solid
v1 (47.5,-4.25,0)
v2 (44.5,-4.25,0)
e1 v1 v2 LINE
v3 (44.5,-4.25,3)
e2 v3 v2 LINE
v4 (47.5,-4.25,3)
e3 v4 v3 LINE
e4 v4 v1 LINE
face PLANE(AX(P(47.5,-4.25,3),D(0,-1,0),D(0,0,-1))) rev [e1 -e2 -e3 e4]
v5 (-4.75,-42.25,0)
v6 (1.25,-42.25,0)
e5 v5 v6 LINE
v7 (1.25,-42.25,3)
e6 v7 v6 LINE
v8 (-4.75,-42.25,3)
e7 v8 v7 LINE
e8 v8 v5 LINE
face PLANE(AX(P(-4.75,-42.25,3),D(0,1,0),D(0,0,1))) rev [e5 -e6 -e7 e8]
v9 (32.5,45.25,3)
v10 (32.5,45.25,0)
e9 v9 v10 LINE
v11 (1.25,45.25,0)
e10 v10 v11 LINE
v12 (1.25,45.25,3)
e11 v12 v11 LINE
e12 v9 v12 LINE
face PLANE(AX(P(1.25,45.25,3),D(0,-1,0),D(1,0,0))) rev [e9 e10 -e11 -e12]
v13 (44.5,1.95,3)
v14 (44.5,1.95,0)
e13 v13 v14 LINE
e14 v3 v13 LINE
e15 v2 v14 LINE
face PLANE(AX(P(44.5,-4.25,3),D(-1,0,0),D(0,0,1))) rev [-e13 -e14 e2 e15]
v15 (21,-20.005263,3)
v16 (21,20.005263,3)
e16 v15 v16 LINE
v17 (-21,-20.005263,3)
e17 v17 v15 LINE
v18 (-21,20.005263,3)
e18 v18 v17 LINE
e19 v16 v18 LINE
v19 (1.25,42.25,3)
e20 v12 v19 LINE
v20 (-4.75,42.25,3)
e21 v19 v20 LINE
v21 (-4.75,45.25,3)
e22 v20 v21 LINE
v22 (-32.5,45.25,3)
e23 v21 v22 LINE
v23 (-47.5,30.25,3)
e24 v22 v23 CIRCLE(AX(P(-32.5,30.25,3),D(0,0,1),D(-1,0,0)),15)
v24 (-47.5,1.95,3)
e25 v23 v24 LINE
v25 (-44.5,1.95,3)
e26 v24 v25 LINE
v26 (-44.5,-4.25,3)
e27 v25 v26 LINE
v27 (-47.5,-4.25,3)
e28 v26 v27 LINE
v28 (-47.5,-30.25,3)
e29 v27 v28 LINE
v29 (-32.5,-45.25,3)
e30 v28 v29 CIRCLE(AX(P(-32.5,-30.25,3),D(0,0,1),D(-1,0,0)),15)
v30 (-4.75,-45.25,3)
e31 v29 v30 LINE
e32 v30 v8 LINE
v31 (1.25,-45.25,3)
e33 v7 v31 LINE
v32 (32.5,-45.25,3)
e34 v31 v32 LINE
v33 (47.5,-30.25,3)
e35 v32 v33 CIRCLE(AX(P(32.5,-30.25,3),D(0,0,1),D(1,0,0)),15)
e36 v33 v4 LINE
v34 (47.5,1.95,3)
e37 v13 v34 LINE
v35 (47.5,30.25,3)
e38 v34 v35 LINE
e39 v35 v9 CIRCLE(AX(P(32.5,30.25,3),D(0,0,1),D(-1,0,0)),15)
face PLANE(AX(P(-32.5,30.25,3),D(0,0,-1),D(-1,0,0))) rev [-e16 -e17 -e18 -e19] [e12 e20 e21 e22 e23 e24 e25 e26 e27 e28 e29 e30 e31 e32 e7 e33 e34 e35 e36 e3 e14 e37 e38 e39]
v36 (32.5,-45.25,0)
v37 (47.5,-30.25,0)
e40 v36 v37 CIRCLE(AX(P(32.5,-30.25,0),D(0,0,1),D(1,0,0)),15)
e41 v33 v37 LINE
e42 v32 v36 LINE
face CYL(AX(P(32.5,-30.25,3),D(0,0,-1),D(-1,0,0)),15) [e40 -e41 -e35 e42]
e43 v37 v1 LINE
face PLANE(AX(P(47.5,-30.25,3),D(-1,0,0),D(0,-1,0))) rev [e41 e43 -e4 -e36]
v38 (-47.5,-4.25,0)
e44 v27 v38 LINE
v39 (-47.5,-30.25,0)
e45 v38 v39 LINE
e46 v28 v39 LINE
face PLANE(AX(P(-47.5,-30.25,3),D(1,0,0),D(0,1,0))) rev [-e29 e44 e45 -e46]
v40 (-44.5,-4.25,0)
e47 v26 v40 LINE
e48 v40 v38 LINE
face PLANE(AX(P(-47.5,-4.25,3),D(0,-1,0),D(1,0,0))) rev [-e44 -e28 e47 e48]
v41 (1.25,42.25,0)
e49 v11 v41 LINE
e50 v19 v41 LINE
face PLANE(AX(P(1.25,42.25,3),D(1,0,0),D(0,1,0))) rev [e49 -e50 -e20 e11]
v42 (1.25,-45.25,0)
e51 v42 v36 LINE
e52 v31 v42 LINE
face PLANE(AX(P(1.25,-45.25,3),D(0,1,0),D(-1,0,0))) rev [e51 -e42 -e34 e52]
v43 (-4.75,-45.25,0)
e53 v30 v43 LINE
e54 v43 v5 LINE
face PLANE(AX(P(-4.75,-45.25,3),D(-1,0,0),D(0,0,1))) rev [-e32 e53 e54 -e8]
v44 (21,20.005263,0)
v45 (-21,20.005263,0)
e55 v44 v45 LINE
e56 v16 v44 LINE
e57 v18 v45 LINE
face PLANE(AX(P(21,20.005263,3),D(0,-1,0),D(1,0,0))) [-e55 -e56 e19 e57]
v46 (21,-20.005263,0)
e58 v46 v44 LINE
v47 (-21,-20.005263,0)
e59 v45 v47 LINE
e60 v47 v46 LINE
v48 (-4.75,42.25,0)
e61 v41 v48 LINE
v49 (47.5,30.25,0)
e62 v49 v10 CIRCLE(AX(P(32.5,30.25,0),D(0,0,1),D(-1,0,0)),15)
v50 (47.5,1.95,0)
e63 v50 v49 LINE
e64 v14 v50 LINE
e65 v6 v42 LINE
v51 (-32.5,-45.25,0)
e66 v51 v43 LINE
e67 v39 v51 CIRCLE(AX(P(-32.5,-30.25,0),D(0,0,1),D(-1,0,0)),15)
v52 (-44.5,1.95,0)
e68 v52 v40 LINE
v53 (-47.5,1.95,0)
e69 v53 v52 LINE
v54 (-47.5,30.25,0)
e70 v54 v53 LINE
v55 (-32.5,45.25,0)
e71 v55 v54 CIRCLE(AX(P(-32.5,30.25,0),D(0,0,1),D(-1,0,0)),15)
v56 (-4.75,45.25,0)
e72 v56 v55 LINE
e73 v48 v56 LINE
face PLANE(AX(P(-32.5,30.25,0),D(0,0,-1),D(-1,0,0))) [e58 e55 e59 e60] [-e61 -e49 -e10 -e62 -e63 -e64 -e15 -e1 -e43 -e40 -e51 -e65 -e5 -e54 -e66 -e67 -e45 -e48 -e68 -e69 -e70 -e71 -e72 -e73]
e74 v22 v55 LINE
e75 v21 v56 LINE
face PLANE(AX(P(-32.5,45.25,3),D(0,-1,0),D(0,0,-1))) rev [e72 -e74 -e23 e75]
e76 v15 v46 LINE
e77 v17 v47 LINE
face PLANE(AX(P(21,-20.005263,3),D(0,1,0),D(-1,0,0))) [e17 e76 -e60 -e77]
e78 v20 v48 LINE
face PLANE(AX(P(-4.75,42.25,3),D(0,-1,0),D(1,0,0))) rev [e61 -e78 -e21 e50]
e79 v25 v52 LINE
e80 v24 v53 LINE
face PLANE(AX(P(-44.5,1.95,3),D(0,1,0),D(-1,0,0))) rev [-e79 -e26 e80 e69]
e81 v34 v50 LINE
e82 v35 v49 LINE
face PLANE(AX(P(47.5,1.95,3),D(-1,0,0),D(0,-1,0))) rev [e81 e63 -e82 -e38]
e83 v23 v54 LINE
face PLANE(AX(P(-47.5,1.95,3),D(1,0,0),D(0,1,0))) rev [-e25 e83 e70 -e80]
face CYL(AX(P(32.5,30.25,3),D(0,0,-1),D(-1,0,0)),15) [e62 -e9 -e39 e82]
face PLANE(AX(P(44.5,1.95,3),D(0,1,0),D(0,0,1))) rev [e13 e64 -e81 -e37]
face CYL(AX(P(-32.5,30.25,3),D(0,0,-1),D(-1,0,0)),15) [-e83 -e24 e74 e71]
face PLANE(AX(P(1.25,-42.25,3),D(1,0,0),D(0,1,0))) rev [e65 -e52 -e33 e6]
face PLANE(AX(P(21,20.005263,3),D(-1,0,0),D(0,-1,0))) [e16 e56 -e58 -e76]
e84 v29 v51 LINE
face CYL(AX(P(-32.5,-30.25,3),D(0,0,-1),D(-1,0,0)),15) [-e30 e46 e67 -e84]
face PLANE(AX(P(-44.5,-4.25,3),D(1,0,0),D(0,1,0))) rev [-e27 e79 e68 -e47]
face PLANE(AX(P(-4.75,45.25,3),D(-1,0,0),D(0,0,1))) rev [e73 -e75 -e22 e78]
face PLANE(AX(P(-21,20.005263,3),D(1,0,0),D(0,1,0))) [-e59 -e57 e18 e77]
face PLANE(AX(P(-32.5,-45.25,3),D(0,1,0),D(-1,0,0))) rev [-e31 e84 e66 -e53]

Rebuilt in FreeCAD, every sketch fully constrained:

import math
import FreeCAD as App
import Part
import Sketcher
Q = App.Units.Quantity


def add_polygon(sketch, points):
    """Adds a closed chain of lines whose ends are joined by coincident constraints."""
    first, n = sketch.GeometryCount, len(points)
    for a, b in zip(points, points[1:] + points[:1]):
        sketch.addGeometry(Part.LineSegment(App.Vector(*a, 0), App.Vector(*b, 0)), False)
    for i in range(n):
        sketch.addConstraint(Sketcher.Constraint("Coincident", first + i, 2, first + (i + 1) % n, 1))

doc = App.newDocument("Part")
body = doc.addObject("PartDesign::Body", "Body")

# Sketch on XY plane
sketch1 = body.newObject("Sketcher::SketchObject", "Sketch")
sketch1.AttachmentSupport = (doc.getObject("XY_Plane"), [""])
sketch1.MapMode = "FlatFace"
sketch1.addGeometry(Part.LineSegment(App.Vector(-44.5, -4.25, 0), App.Vector(-47.5, -4.25, 0)), False)  # 0
sketch1.addGeometry(Part.LineSegment(App.Vector(-47.5, -4.25, 0), App.Vector(-47.5, -30.25, 0)), False)  # 1
sketch1.addGeometry(Part.ArcOfCircle(Part.Circle(App.Vector(-32.5, -30.25, 0), App.Vector(0, 0, 1), 15), math.radians(180), math.radians(270)), False)  # 2
sketch1.addGeometry(Part.LineSegment(App.Vector(-32.5, -45.25, 0), App.Vector(-4.75, -45.25, 0)), False)  # 3
sketch1.addGeometry(Part.LineSegment(App.Vector(-4.75, -45.25, 0), App.Vector(-4.75, -42.25, 0)), False)  # 4
sketch1.addGeometry(Part.LineSegment(App.Vector(-4.75, -42.25, 0), App.Vector(1.25, -42.25, 0)), False)  # 5
sketch1.addGeometry(Part.LineSegment(App.Vector(1.25, -42.25, 0), App.Vector(1.25, -45.25, 0)), False)  # 6
sketch1.addGeometry(Part.LineSegment(App.Vector(1.25, -45.25, 0), App.Vector(32.5, -45.25, 0)), False)  # 7
sketch1.addGeometry(Part.ArcOfCircle(Part.Circle(App.Vector(32.5, -30.25, 0), App.Vector(0, 0, 1), 15), math.radians(-90), math.radians(0)), False)  # 8
sketch1.addGeometry(Part.LineSegment(App.Vector(47.5, -30.25, 0), App.Vector(47.5, -4.25, 0)), False)  # 9
sketch1.addGeometry(Part.LineSegment(App.Vector(47.5, -4.25, 0), App.Vector(44.5, -4.25, 0)), False)  # 10
sketch1.addGeometry(Part.LineSegment(App.Vector(44.5, -4.25, 0), App.Vector(44.5, 1.95, 0)), False)  # 11
sketch1.addGeometry(Part.LineSegment(App.Vector(44.5, 1.95, 0), App.Vector(47.5, 1.95, 0)), False)  # 12
sketch1.addGeometry(Part.LineSegment(App.Vector(47.5, 1.95, 0), App.Vector(47.5, 30.25, 0)), False)  # 13
sketch1.addGeometry(Part.ArcOfCircle(Part.Circle(App.Vector(32.5, 30.25, 0), App.Vector(0, 0, 1), 15), math.radians(0), math.radians(90)), False)  # 14
sketch1.addGeometry(Part.LineSegment(App.Vector(32.5, 45.25, 0), App.Vector(1.25, 45.25, 0)), False)  # 15
sketch1.addGeometry(Part.LineSegment(App.Vector(1.25, 45.25, 0), App.Vector(1.25, 42.25, 0)), False)  # 16
sketch1.addGeometry(Part.LineSegment(App.Vector(1.25, 42.25, 0), App.Vector(-4.75, 42.25, 0)), False)  # 17
sketch1.addGeometry(Part.LineSegment(App.Vector(-4.75, 42.25, 0), App.Vector(-4.75, 45.25, 0)), False)  # 18
sketch1.addGeometry(Part.LineSegment(App.Vector(-4.75, 45.25, 0), App.Vector(-32.5, 45.25, 0)), False)  # 19
sketch1.addGeometry(Part.ArcOfCircle(Part.Circle(App.Vector(-32.5, 30.25, 0), App.Vector(0, 0, 1), 15), math.radians(90), math.radians(180)), False)  # 20
sketch1.addGeometry(Part.LineSegment(App.Vector(-47.5, 30.25, 0), App.Vector(-47.5, 1.95, 0)), False)  # 21
sketch1.addGeometry(Part.LineSegment(App.Vector(-47.5, 1.95, 0), App.Vector(-44.5, 1.95, 0)), False)  # 22
sketch1.addGeometry(Part.LineSegment(App.Vector(-44.5, 1.95, 0), App.Vector(-44.5, -4.25, 0)), False)  # 23
add_polygon(sketch1, [(-21, -20.005263), (-21, 20.005263), (21, 20.005263), (21, -20.005263)])  # lines 24-27
sketch1.addConstraint([
    Sketcher.Constraint("Coincident", 0, 2, 1, 1),
    Sketcher.Constraint("Tangent", 1, 2, 2, 1),
    Sketcher.Constraint("Tangent", 2, 2, 3, 1),
    Sketcher.Constraint("Coincident", 3, 2, 4, 1),
    Sketcher.Constraint("Coincident", 4, 2, 5, 1),
    Sketcher.Constraint("Coincident", 5, 2, 6, 1),
    Sketcher.Constraint("Coincident", 6, 2, 7, 1),
    Sketcher.Constraint("Tangent", 7, 2, 8, 1),
    Sketcher.Constraint("Tangent", 8, 2, 9, 1),
    Sketcher.Constraint("Coincident", 9, 2, 10, 1),
    Sketcher.Constraint("Coincident", 10, 2, 11, 1),
    Sketcher.Constraint("Coincident", 11, 2, 12, 1),
    Sketcher.Constraint("Coincident", 12, 2, 13, 1),
    Sketcher.Constraint("Tangent", 13, 2, 14, 1),
    Sketcher.Constraint("Tangent", 14, 2, 15, 1),
    Sketcher.Constraint("Coincident", 15, 2, 16, 1),
    Sketcher.Constraint("Coincident", 16, 2, 17, 1),
    Sketcher.Constraint("Coincident", 17, 2, 18, 1),
    Sketcher.Constraint("Coincident", 18, 2, 19, 1),
    Sketcher.Constraint("Tangent", 19, 2, 20, 1),
    Sketcher.Constraint("Tangent", 20, 2, 21, 1),
    Sketcher.Constraint("Coincident", 21, 2, 22, 1),
    Sketcher.Constraint("Coincident", 22, 2, 23, 1),
    Sketcher.Constraint("Coincident", 23, 2, 0, 1),
    Sketcher.Constraint("Horizontal", 0),
    Sketcher.Constraint("Vertical", 1),
    Sketcher.Constraint("Horizontal", 3),
    Sketcher.Constraint("Vertical", 4),
    Sketcher.Constraint("Horizontal", 5),
    Sketcher.Constraint("Vertical", 6),
    Sketcher.Constraint("Horizontal", 7),
    Sketcher.Constraint("Vertical", 9),
    Sketcher.Constraint("Horizontal", 10),
    Sketcher.Constraint("Vertical", 11),
    Sketcher.Constraint("Horizontal", 12),
    Sketcher.Constraint("Vertical", 13),
    Sketcher.Constraint("Horizontal", 15),
    Sketcher.Constraint("Vertical", 16),
    Sketcher.Constraint("Horizontal", 17),
    Sketcher.Constraint("Vertical", 18),
    Sketcher.Constraint("Horizontal", 19),
    Sketcher.Constraint("Vertical", 21),
    Sketcher.Constraint("Horizontal", 22),
    Sketcher.Constraint("Vertical", 23),
    Sketcher.Constraint("Vertical", 24),
    Sketcher.Constraint("Horizontal", 25),
    Sketcher.Constraint("Vertical", 26),
    Sketcher.Constraint("Horizontal", 27),
    Sketcher.Constraint("Equal", 2, 8),
    Sketcher.Constraint("Equal", 8, 14),
    Sketcher.Constraint("Equal", 14, 20),
    Sketcher.Constraint("Symmetric", 2, 3, 14, 3, -1, 1),
    Sketcher.Constraint("Symmetric", 8, 3, 20, 3, -1, 1),
    Sketcher.Constraint("Symmetric", 24, 2, 26, 2, -1, 1),
    Sketcher.Constraint("Symmetric", 2, 3, 8, 3, -2),
    Sketcher.Constraint("Symmetric", 11, 2, 22, 2, -2),
    Sketcher.Constraint("Symmetric", 5, 2, 16, 2, -1),
    Sketcher.Constraint("Horizontal", 0, 2, 9, 2),
    Sketcher.Constraint("Vertical", 4, 2, 17, 2),
    Sketcher.Constraint("Equal", 22, 4),
    Sketcher.Constraint("Radius", 2, Q("15 mm")),
    Sketcher.Constraint("DistanceX", 0, 2, 0, 1, Q("3 mm")),
    Sketcher.Constraint("DistanceX", 5, 1, 5, 2, Q("6 mm")),
    Sketcher.Constraint("DistanceX", 25, 1, 25, 2, Q("42 mm")),
    Sketcher.Constraint("DistanceY", 1, 2, 1, 1, Q("26 mm")),
    Sketcher.Constraint("DistanceY", 11, 1, 11, 2, Q("6.2 mm")),
    Sketcher.Constraint("DistanceY", 13, 1, 13, 2, Q("28.3 mm")),
    Sketcher.Constraint("DistanceX", 2, 3, 8, 3, Q("65 mm")),
    Sketcher.Constraint("DistanceX", 3, 1, 3, 2, Q("27.75 mm")),
    Sketcher.Constraint("DistanceY", 24, 1, 24, 2, Q("40.010526 mm")),
])
pad1 = body.newObject("PartDesign::Pad", "Pad")
pad1.Profile = sketch1
pad1.Length = 3

doc.recompute()
